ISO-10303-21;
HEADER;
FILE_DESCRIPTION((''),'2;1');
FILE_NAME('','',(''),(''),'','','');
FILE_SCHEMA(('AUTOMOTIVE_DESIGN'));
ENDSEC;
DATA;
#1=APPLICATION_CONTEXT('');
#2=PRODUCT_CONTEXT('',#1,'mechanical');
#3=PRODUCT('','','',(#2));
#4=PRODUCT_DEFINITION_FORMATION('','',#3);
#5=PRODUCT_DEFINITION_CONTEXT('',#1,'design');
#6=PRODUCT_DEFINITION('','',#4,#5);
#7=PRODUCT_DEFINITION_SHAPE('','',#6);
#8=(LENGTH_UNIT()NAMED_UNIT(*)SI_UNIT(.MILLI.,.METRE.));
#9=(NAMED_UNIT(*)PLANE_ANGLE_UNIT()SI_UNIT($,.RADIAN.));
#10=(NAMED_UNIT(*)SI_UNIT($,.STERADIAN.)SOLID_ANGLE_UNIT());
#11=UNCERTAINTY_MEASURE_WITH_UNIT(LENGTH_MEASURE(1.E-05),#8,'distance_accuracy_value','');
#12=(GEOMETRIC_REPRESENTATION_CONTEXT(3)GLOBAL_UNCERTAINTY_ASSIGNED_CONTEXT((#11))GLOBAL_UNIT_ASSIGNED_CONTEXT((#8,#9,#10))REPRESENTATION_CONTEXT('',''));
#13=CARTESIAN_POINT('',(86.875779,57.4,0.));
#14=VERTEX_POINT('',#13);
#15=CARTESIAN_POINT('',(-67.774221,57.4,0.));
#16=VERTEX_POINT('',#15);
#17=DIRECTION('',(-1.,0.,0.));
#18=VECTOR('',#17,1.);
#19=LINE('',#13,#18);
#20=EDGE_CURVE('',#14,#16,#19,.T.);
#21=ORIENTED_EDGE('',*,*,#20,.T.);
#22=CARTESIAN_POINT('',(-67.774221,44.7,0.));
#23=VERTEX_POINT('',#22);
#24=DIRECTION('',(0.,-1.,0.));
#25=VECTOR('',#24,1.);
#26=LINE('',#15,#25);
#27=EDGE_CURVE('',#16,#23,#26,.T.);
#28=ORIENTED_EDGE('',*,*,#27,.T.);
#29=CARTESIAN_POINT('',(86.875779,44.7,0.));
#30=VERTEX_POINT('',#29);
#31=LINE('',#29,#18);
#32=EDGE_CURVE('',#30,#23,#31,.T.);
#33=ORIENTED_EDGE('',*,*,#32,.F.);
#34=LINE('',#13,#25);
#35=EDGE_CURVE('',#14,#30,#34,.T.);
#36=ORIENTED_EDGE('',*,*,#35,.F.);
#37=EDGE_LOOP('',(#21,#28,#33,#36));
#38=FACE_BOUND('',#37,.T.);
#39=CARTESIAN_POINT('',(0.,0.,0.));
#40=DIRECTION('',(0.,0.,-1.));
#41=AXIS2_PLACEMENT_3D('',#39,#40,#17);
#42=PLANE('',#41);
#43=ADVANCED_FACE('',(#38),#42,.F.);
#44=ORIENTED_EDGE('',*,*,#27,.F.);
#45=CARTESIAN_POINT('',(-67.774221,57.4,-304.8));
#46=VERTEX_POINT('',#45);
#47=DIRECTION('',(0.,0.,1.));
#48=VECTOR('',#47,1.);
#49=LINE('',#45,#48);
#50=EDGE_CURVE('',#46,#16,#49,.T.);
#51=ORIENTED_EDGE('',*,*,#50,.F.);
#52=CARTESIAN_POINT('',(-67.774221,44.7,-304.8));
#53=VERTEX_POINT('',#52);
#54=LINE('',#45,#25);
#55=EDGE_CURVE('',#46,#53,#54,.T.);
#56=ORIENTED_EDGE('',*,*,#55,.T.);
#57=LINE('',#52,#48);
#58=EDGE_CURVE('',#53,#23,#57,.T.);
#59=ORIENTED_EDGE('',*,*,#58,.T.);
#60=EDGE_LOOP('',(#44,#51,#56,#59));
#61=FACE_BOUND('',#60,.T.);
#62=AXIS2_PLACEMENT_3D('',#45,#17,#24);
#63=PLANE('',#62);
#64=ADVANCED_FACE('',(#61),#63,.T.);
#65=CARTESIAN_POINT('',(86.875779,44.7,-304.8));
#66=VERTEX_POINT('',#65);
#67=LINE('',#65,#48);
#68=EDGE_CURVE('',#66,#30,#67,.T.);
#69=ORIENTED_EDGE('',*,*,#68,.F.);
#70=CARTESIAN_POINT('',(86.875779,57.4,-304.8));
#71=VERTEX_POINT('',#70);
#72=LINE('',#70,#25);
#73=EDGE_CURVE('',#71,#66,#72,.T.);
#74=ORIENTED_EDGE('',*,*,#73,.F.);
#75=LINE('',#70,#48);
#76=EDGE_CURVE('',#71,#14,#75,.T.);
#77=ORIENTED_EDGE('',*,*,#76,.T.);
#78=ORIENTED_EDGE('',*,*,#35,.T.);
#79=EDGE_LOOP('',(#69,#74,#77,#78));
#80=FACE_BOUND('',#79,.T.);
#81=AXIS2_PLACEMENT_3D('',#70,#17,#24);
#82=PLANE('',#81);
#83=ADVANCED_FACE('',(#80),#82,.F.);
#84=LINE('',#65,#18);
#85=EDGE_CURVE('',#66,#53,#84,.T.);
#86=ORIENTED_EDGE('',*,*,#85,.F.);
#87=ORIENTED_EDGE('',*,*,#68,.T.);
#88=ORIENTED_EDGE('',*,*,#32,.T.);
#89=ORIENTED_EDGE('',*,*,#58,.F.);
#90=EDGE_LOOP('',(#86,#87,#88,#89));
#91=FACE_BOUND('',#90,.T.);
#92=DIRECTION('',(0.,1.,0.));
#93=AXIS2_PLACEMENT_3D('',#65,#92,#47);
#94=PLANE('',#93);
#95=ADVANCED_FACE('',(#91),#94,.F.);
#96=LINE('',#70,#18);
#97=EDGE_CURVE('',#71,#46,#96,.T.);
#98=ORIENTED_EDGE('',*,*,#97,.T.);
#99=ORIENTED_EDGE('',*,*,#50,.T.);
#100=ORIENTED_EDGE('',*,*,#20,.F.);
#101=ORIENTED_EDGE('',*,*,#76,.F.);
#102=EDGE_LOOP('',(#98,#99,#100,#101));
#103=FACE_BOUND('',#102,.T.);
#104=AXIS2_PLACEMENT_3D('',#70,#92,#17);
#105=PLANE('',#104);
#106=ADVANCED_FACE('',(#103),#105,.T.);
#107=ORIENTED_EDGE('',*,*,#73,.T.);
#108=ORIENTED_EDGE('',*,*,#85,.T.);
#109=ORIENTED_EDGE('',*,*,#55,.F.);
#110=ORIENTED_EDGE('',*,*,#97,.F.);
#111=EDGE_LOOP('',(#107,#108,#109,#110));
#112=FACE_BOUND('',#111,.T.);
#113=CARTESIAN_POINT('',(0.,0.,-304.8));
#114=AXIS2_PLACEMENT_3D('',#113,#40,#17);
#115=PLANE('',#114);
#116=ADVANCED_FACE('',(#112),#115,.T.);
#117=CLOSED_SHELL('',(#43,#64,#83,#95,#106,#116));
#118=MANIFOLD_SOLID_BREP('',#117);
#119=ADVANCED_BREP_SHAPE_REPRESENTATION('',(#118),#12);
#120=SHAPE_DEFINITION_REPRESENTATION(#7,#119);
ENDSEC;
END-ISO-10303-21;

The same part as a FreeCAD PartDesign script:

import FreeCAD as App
import Part
import Sketcher
Q = App.Units.Quantity

doc = App.newDocument("Part")
body = doc.addObject("PartDesign::Body", "Body")

sketch1 = body.newObject("Sketcher::SketchObject", "Sketch")
sketch1.AttachmentSupport = (doc.getObject("XY_Plane"), [""])
sketch1.MapMode = "FlatFace"
sketch1.addGeometry(Part.LineSegment(App.Vector(-67.774221, 57.4, 0), App.Vector(-67.774221, 44.7, 0)), False)
sketch1.addGeometry(Part.LineSegment(App.Vector(-67.774221, 44.7, 0), App.Vector(86.875779, 44.7, 0)), False)
sketch1.addGeometry(Part.LineSegment(App.Vector(86.875779, 44.7, 0), App.Vector(86.875779, 57.4, 0)), False)
sketch1.addGeometry(Part.LineSegment(App.Vector(86.875779, 57.4, 0), App.Vector(-67.774221, 57.4, 0)), False)
sketch1.addConstraint(Sketcher.Constraint("Coincident", 0, 2, 1, 1))
sketch1.addConstraint(Sketcher.Constraint("Coincident", 1, 2, 2, 1))
sketch1.addConstraint(Sketcher.Constraint("Coincident", 2, 2, 3, 1))
sketch1.addConstraint(Sketcher.Constraint("Coincident", 3, 2, 0, 1))
sketch1.addConstraint(Sketcher.Constraint("Vertical", 0))
sketch1.addConstraint(Sketcher.Constraint("Horizontal", 1))
sketch1.addConstraint(Sketcher.Constraint("Vertical", 2))
sketch1.addConstraint(Sketcher.Constraint("Horizontal", 3))
sketch1.addConstraint(Sketcher.Constraint("DistanceY", 0, 2, 0, 1, Q("0.5 in")))
sketch1.addConstraint(Sketcher.Constraint("DistanceX", 1, 1, 1, 2, 154.65))
sketch1.addConstraint(Sketcher.Constraint("DistanceY", -1, 1, 0, 2, 44.7))
sketch1.addConstraint(Sketcher.Constraint("DistanceX", 0, 2, -1, 1, 67.774221))
pad1 = body.newObject("PartDesign::Pad", "Pad")
pad1.Profile = sketch1
pad1.Length = Q("12 in")
pad1.Reversed = True

doc.recompute()
